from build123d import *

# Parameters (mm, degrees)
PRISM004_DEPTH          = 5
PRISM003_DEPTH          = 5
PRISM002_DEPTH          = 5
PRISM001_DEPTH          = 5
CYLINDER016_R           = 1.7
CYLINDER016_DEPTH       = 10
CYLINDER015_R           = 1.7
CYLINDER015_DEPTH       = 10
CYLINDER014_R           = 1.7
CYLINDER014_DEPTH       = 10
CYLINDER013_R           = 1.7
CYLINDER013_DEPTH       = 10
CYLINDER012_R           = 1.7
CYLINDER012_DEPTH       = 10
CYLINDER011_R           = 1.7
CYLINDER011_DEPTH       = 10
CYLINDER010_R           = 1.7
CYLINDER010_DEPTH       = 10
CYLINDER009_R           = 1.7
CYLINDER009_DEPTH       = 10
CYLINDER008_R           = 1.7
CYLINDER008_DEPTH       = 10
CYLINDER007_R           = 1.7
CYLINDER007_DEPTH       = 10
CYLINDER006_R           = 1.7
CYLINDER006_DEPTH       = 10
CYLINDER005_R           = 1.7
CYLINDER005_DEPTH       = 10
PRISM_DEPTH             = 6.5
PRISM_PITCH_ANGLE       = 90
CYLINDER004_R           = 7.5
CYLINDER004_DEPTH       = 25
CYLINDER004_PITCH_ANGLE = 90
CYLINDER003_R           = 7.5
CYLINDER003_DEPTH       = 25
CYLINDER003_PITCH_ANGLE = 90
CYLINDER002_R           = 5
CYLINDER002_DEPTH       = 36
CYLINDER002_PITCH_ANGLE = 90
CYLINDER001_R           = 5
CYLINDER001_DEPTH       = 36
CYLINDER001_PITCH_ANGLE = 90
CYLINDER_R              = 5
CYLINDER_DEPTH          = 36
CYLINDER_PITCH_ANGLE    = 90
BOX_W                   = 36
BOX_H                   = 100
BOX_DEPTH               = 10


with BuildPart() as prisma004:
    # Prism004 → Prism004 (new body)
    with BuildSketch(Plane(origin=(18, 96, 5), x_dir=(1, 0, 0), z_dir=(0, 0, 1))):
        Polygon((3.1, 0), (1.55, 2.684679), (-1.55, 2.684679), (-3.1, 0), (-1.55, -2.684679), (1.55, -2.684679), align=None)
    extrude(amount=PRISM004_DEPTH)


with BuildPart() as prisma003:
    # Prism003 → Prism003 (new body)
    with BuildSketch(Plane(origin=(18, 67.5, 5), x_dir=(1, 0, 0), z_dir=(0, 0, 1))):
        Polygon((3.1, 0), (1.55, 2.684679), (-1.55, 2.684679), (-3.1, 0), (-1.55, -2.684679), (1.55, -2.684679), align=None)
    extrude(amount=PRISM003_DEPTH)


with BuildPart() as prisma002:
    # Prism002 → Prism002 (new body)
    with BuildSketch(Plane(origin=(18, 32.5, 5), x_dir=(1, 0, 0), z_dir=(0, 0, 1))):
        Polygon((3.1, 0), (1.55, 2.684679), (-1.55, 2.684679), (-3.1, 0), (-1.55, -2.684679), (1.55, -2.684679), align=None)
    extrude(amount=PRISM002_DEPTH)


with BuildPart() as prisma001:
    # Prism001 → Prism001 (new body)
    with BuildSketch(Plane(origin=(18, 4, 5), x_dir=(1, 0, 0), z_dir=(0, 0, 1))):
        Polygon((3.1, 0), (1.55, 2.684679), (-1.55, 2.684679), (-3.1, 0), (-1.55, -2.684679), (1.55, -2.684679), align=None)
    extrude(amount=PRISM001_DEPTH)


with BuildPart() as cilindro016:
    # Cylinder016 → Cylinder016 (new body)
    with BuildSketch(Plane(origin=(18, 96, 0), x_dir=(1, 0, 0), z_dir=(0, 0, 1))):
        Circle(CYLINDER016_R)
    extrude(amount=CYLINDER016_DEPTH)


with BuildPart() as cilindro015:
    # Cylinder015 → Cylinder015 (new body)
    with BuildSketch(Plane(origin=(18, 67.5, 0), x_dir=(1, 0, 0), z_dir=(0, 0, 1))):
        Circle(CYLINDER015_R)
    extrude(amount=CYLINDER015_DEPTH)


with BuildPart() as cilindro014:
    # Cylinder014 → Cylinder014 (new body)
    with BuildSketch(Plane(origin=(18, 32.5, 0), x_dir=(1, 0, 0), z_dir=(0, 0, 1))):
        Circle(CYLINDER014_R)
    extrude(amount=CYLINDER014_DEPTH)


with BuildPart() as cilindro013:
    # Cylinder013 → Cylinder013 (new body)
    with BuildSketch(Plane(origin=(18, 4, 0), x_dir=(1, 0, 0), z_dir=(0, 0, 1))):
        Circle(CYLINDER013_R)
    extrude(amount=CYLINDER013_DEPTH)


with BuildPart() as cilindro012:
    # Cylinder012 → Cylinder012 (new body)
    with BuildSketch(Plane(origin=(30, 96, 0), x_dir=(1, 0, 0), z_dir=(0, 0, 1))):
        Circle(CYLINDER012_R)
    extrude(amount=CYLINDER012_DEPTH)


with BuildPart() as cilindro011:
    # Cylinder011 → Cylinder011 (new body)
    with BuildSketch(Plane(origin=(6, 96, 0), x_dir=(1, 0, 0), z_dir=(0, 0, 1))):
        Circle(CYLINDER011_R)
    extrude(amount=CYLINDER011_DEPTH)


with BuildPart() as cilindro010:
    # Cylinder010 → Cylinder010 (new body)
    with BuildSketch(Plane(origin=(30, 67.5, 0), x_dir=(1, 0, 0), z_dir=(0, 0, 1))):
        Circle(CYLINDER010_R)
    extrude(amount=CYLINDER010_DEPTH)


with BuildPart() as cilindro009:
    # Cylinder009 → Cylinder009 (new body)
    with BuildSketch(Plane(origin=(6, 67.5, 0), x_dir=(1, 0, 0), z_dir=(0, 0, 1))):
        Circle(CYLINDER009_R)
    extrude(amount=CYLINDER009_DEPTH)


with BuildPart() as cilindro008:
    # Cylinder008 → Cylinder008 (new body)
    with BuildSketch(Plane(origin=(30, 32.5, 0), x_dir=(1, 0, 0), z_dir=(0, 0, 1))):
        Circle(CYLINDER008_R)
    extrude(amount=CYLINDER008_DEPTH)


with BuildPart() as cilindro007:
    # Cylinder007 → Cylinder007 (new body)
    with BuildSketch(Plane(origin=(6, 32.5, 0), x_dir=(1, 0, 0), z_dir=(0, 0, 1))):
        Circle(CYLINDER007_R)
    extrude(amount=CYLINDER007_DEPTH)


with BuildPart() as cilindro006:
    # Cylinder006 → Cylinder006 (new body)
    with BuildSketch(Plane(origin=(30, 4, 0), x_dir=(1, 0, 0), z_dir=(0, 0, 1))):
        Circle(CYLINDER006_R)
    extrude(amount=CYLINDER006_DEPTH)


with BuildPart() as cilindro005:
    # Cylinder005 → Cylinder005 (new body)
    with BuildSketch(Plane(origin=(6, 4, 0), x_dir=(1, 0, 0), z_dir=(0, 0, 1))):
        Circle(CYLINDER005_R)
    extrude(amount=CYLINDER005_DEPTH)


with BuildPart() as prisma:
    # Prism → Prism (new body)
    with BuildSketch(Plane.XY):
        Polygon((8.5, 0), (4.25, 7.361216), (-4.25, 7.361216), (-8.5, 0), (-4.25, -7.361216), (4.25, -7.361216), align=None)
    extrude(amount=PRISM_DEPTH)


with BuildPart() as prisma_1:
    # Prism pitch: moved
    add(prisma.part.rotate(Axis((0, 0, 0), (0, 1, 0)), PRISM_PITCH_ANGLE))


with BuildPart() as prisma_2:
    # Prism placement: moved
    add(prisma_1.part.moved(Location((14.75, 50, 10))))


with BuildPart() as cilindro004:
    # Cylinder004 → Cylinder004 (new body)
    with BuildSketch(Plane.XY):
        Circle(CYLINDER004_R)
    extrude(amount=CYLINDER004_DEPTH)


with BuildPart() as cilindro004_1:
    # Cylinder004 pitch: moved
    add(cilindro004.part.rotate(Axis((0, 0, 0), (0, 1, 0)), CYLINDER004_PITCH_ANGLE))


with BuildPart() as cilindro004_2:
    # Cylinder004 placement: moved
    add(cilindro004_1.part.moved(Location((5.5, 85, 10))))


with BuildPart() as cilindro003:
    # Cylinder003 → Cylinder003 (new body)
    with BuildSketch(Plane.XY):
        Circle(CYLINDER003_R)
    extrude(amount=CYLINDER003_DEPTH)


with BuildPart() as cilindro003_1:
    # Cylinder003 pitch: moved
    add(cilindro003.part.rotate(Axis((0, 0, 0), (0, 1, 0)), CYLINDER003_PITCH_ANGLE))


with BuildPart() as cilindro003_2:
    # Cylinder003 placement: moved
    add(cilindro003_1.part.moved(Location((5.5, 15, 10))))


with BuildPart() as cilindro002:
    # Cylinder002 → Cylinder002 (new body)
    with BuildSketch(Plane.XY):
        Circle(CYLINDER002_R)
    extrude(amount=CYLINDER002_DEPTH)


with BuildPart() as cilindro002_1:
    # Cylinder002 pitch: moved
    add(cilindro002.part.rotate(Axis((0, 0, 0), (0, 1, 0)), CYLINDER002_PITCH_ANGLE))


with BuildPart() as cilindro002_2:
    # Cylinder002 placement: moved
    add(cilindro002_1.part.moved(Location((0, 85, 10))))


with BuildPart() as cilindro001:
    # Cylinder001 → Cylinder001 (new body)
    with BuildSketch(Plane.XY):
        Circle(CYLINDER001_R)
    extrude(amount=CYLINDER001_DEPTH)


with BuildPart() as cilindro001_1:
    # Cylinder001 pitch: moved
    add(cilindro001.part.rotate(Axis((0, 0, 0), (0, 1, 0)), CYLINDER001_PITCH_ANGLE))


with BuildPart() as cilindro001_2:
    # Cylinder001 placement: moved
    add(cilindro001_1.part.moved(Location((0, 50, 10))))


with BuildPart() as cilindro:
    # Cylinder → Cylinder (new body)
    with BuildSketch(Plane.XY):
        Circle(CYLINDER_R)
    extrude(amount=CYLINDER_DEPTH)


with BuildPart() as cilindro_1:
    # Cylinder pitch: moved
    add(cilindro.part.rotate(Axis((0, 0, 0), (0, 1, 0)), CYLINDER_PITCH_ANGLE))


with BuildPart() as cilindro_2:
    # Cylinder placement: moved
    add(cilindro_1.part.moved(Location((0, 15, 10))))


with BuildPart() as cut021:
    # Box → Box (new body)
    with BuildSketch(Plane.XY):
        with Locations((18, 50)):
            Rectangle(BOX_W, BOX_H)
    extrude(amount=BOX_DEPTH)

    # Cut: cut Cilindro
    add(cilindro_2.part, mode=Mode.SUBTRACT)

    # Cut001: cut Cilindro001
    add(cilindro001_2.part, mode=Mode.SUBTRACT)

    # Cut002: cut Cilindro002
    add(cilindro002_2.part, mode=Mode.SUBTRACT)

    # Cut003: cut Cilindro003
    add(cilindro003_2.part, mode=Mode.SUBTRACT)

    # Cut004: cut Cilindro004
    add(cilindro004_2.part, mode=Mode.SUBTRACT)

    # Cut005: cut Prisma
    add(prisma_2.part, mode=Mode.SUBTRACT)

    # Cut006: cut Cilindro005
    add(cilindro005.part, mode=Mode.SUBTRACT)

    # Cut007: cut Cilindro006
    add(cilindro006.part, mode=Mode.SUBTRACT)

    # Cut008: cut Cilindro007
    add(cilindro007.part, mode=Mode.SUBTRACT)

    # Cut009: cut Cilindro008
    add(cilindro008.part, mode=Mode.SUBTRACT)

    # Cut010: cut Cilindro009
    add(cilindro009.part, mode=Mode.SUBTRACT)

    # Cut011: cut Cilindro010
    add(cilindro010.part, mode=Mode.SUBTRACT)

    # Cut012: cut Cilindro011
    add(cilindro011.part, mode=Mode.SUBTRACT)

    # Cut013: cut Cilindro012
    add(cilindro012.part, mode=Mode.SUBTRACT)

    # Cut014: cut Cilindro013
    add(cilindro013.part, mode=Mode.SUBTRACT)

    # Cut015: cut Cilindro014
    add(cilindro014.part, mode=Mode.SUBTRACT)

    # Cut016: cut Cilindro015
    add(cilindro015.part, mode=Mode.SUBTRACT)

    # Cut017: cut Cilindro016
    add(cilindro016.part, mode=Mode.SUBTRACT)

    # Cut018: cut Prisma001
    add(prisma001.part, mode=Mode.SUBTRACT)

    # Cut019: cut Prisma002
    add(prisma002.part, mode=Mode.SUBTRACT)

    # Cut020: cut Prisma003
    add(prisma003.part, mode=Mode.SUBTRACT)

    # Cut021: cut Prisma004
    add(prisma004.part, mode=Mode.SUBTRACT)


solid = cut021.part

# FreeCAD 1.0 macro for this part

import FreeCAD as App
import Part
import Sketcher

V = App.Vector
Q = App.Units.Quantity

doc = App.newDocument("Part")
body = doc.addObject("PartDesign::Body", "Body")

# Sketch on XY plane
sketch1 = body.newObject("Sketcher::SketchObject", "Sketch")
sketch1.AttachmentSupport = (doc.getObject("XY_Plane"), [""])
sketch1.MapMode = "FlatFace"
sketch1.AttachmentOffset = App.Placement(V(0, 0, 5), App.Rotation())
sketch1.addGeometry([
    Part.LineSegment(V(21.1, 96, 0), V(19.55, 98.684679, 0)),  # 0
    Part.LineSegment(V(19.55, 98.684679, 0), V(16.45, 98.684679, 0)),  # 1
    Part.LineSegment(V(16.45, 98.684679, 0), V(14.9, 96, 0)),  # 2
    Part.LineSegment(V(14.9, 96, 0), V(16.45, 93.315321, 0)),  # 3
    Part.LineSegment(V(16.45, 93.315321, 0), V(19.55, 93.315321, 0)),  # 4
    Part.LineSegment(V(19.55, 93.315321, 0), V(21.1, 96, 0)),  # 5
], False)
sketch1.addConstraint([
    Sketcher.Constraint("Coincident", 0, 2, 1, 1),
    Sketcher.Constraint("Coincident", 1, 2, 2, 1),
    Sketcher.Constraint("Coincident", 2, 2, 3, 1),
    Sketcher.Constraint("Coincident", 3, 2, 4, 1),
    Sketcher.Constraint("Coincident", 4, 2, 5, 1),
    Sketcher.Constraint("Coincident", 5, 2, 0, 1),
    Sketcher.Constraint("Horizontal", 1),
    Sketcher.Constraint("Horizontal", 4),
    Sketcher.Constraint("Parallel", 0, 3),
    Sketcher.Constraint("Parallel", 2, 5),
    Sketcher.Constraint("Horizontal", 2, 2, 5, 2),
    Sketcher.Constraint("Vertical", 1, 2, 3, 2),
    Sketcher.Constraint("Vertical", 0, 2, 4, 2),
    Sketcher.Constraint("Angle", 0, Q("119.999998 deg")),
    Sketcher.Constraint("DistanceX", 1, 2, 1, 1, Q("3.1 mm")),
    Sketcher.Constraint("DistanceY", -1, 1, 2, 2, Q("96 mm")),
    Sketcher.Constraint("Distance", 0, Q("3.1 mm")),
    Sketcher.Constraint("DistanceX", -1, 1, 2, 2, Q("14.9 mm")),
])
pad1 = body.newObject("PartDesign::Pad", "Pad")
pad1.Profile = sketch1
pad1.Length = 5
body2 = doc.addObject("PartDesign::Body", "Body001")

# Sketch on XY plane
sketch2 = body2.newObject("Sketcher::SketchObject", "Sketch001")
sketch2.AttachmentSupport = (doc.getObject("XY_Plane001"), [""])
sketch2.MapMode = "FlatFace"
sketch2.AttachmentOffset = App.Placement(V(0, 0, 5), App.Rotation())
sketch2.addGeometry([
    Part.LineSegment(V(21.1, 67.5, 0), V(19.55, 70.184679, 0)),  # 0
    Part.LineSegment(V(19.55, 70.184679, 0), V(16.45, 70.184679, 0)),  # 1
    Part.LineSegment(V(16.45, 70.184679, 0), V(14.9, 67.5, 0)),  # 2
    Part.LineSegment(V(14.9, 67.5, 0), V(16.45, 64.815321, 0)),  # 3
    Part.LineSegment(V(16.45, 64.815321, 0), V(19.55, 64.815321, 0)),  # 4
    Part.LineSegment(V(19.55, 64.815321, 0), V(21.1, 67.5, 0)),  # 5
], False)
sketch2.addConstraint([
    Sketcher.Constraint("Coincident", 0, 2, 1, 1),
    Sketcher.Constraint("Coincident", 1, 2, 2, 1),
    Sketcher.Constraint("Coincident", 2, 2, 3, 1),
    Sketcher.Constraint("Coincident", 3, 2, 4, 1),
    Sketcher.Constraint("Coincident", 4, 2, 5, 1),
    Sketcher.Constraint("Coincident", 5, 2, 0, 1),
    Sketcher.Constraint("Horizontal", 1),
    Sketcher.Constraint("Horizontal", 4),
    Sketcher.Constraint("Parallel", 0, 3),
    Sketcher.Constraint("Parallel", 2, 5),
    Sketcher.Constraint("Horizontal", 2, 2, 5, 2),
    Sketcher.Constraint("Vertical", 1, 2, 3, 2),
    Sketcher.Constraint("Vertical", 0, 2, 4, 2),
    Sketcher.Constraint("Angle", 0, Q("119.999998 deg")),
    Sketcher.Constraint("DistanceX", 1, 2, 1, 1, Q("3.1 mm")),
    Sketcher.Constraint("Distance", 0, Q("3.1 mm")),
    Sketcher.Constraint("DistanceX", -1, 1, 2, 2, Q("14.9 mm")),
    Sketcher.Constraint("DistanceY", -1, 1, 2, 2, Q("67.5 mm")),
])
pad2 = body2.newObject("PartDesign::Pad", "Pad001")
pad2.Profile = sketch2
pad2.Length = 5
body3 = doc.addObject("PartDesign::Body", "Body002")

# Sketch on XY plane
sketch3 = body3.newObject("Sketcher::SketchObject", "Sketch002")
sketch3.AttachmentSupport = (doc.getObject("XY_Plane002"), [""])
sketch3.MapMode = "FlatFace"
sketch3.AttachmentOffset = App.Placement(V(0, 0, 5), App.Rotation())
sketch3.addGeometry([
    Part.LineSegment(V(21.1, 32.5, 0), V(19.55, 35.184679, 0)),  # 0
    Part.LineSegment(V(19.55, 35.184679, 0), V(16.45, 35.184679, 0)),  # 1
    Part.LineSegment(V(16.45, 35.184679, 0), V(14.9, 32.5, 0)),  # 2
    Part.LineSegment(V(14.9, 32.5, 0), V(16.45, 29.815321, 0)),  # 3
    Part.LineSegment(V(16.45, 29.815321, 0), V(19.55, 29.815321, 0)),  # 4
    Part.LineSegment(V(19.55, 29.815321, 0), V(21.1, 32.5, 0)),  # 5
], False)
sketch3.addConstraint([
    Sketcher.Constraint("Coincident", 0, 2, 1, 1),
    Sketcher.Constraint("Coincident", 1, 2, 2, 1),
    Sketcher.Constraint("Coincident", 2, 2, 3, 1),
    Sketcher.Constraint("Coincident", 3, 2, 4, 1),
    Sketcher.Constraint("Coincident", 4, 2, 5, 1),
    Sketcher.Constraint("Coincident", 5, 2, 0, 1),
    Sketcher.Constraint("Horizontal", 1),
    Sketcher.Constraint("Horizontal", 4),
    Sketcher.Constraint("Parallel", 0, 3),
    Sketcher.Constraint("Parallel", 2, 5),
    Sketcher.Constraint("Horizontal", 2, 2, 5, 2),
    Sketcher.Constraint("Vertical", 1, 2, 3, 2),
    Sketcher.Constraint("Vertical", 0, 2, 4, 2),
    Sketcher.Constraint("Angle", 0, Q("119.999998 deg")),
    Sketcher.Constraint("DistanceX", 1, 2, 1, 1, Q("3.1 mm")),
    Sketcher.Constraint("Distance", 0, Q("3.1 mm")),
    Sketcher.Constraint("DistanceX", -1, 1, 2, 2, Q("14.9 mm")),
    Sketcher.Constraint("DistanceY", -1, 1, 2, 2, Q("32.5 mm")),
])
pad3 = body3.newObject("PartDesign::Pad", "Pad002")
pad3.Profile = sketch3
pad3.Length = 5
body4 = doc.addObject("PartDesign::Body", "Body003")

# Sketch on XY plane
sketch4 = body4.newObject("Sketcher::SketchObject", "Sketch003")
sketch4.AttachmentSupport = (doc.getObject("XY_Plane003"), [""])
sketch4.MapMode = "FlatFace"
sketch4.AttachmentOffset = App.Placement(V(0, 0, 5), App.Rotation())
sketch4.addGeometry([
    Part.LineSegment(V(21.1, 4, 0), V(19.55, 6.684679, 0)),  # 0
    Part.LineSegment(V(19.55, 6.684679, 0), V(16.45, 6.684679, 0)),  # 1
    Part.LineSegment(V(16.45, 6.684679, 0), V(14.9, 4, 0)),  # 2
    Part.LineSegment(V(14.9, 4, 0), V(16.45, 1.315321, 0)),  # 3
    Part.LineSegment(V(16.45, 1.315321, 0), V(19.55, 1.315321, 0)),  # 4
    Part.LineSegment(V(19.55, 1.315321, 0), V(21.1, 4, 0)),  # 5
], False)
sketch4.addConstraint([
    Sketcher.Constraint("Coincident", 0, 2, 1, 1),
    Sketcher.Constraint("Coincident", 1, 2, 2, 1),
    Sketcher.Constraint("Coincident", 2, 2, 3, 1),
    Sketcher.Constraint("Coincident", 3, 2, 4, 1),
    Sketcher.Constraint("Coincident", 4, 2, 5, 1),
    Sketcher.Constraint("Coincident", 5, 2, 0, 1),
    Sketcher.Constraint("Horizontal", 1),
    Sketcher.Constraint("Horizontal", 4),
    Sketcher.Constraint("Parallel", 0, 3),
    Sketcher.Constraint("Parallel", 2, 5),
    Sketcher.Constraint("Horizontal", 2, 2, 5, 2),
    Sketcher.Constraint("Vertical", 1, 2, 3, 2),
    Sketcher.Constraint("Vertical", 0, 2, 4, 2),
    Sketcher.Constraint("Angle", 0, Q("119.999998 deg")),
    Sketcher.Constraint("DistanceX", 1, 2, 1, 1, Q("3.1 mm")),
    Sketcher.Constraint("DistanceY", -1, 1, 2, 2, Q("4 mm")),
    Sketcher.Constraint("Distance", 0, Q("3.1 mm")),
    Sketcher.Constraint("DistanceX", -1, 1, 2, 2, Q("14.9 mm")),
])
pad4 = body4.newObject("PartDesign::Pad", "Pad003")
pad4.Profile = sketch4
pad4.Length = 5
body5 = doc.addObject("PartDesign::Body", "Body004")

# Sketch on XY plane
sketch5 = body5.newObject("Sketcher::SketchObject", "Sketch004")
sketch5.AttachmentSupport = (doc.getObject("XY_Plane004"), [""])
sketch5.MapMode = "FlatFace"
sketch5.addGeometry(Part.Circle(V(18, 96, 0), V(0, 0, 1), 1.7), False)
sketch5.addConstraint([
    Sketcher.Constraint("Diameter", 0, Q("3.4 mm")),
    Sketcher.Constraint("DistanceX", -1, 1, 0, 3, Q("18 mm")),
    Sketcher.Constraint("DistanceY", -1, 1, 0, 3, Q("96 mm")),
])
pad5 = body5.newObject("PartDesign::Pad", "Pad004")
pad5.Profile = sketch5
pad5.Length = 10
body6 = doc.addObject("PartDesign::Body", "Body005")

# Sketch on XY plane
sketch6 = body6.newObject("Sketcher::SketchObject", "Sketch005")
sketch6.AttachmentSupport = (doc.getObject("XY_Plane005"), [""])
sketch6.MapMode = "FlatFace"
sketch6.addGeometry(Part.Circle(V(18, 67.5, 0), V(0, 0, 1), 1.7), False)
sketch6.addConstraint([
    Sketcher.Constraint("Diameter", 0, Q("3.4 mm")),
    Sketcher.Constraint("DistanceX", -1, 1, 0, 3, Q("18 mm")),
    Sketcher.Constraint("DistanceY", -1, 1, 0, 3, Q("67.5 mm")),
])
pad6 = body6.newObject("PartDesign::Pad", "Pad005")
pad6.Profile = sketch6
pad6.Length = 10
body7 = doc.addObject("PartDesign::Body", "Body006")

# Sketch on XY plane
sketch7 = body7.newObject("Sketcher::SketchObject", "Sketch006")
sketch7.AttachmentSupport = (doc.getObject("XY_Plane006"), [""])
sketch7.MapMode = "FlatFace"
sketch7.addGeometry(Part.Circle(V(18, 32.5, 0), V(0, 0, 1), 1.7), False)
sketch7.addConstraint([
    Sketcher.Constraint("Diameter", 0, Q("3.4 mm")),
    Sketcher.Constraint("DistanceX", -1, 1, 0, 3, Q("18 mm")),
    Sketcher.Constraint("DistanceY", -1, 1, 0, 3, Q("32.5 mm")),
])
pad7 = body7.newObject("PartDesign::Pad", "Pad006")
pad7.Profile = sketch7
pad7.Length = 10
body8 = doc.addObject("PartDesign::Body", "Body007")

# Sketch on XY plane
sketch8 = body8.newObject("Sketcher::SketchObject", "Sketch007")
sketch8.AttachmentSupport = (doc.getObject("XY_Plane007"), [""])
sketch8.MapMode = "FlatFace"
sketch8.addGeometry(Part.Circle(V(18, 4, 0), V(0, 0, 1), 1.7), False)
sketch8.addConstraint([
    Sketcher.Constraint("Diameter", 0, Q("3.4 mm")),
    Sketcher.Constraint("DistanceX", -1, 1, 0, 3, Q("18 mm")),
    Sketcher.Constraint("DistanceY", -1, 1, 0, 3, Q("4 mm")),
])
pad8 = body8.newObject("PartDesign::Pad", "Pad007")
pad8.Profile = sketch8
pad8.Length = 10
body9 = doc.addObject("PartDesign::Body", "Body008")

# Sketch on XY plane
sketch9 = body9.newObject("Sketcher::SketchObject", "Sketch008")
sketch9.AttachmentSupport = (doc.getObject("XY_Plane008"), [""])
sketch9.MapMode = "FlatFace"
sketch9.addGeometry(Part.Circle(V(30, 96, 0), V(0, 0, 1), 1.7), False)
sketch9.addConstraint([
    Sketcher.Constraint("Diameter", 0, Q("3.4 mm")),
    Sketcher.Constraint("DistanceX", -1, 1, 0, 3, Q("30 mm")),
    Sketcher.Constraint("DistanceY", -1, 1, 0, 3, Q("96 mm")),
])
pad9 = body9.newObject("PartDesign::Pad", "Pad008")
pad9.Profile = sketch9
pad9.Length = 10
body10 = doc.addObject("PartDesign::Body", "Body009")

# Sketch on XY plane
sketch10 = body10.newObject("Sketcher::SketchObject", "Sketch009")
sketch10.AttachmentSupport = (doc.getObject("XY_Plane009"), [""])
sketch10.MapMode = "FlatFace"
sketch10.addGeometry(Part.Circle(V(6, 96, 0), V(0, 0, 1), 1.7), False)
sketch10.addConstraint([
    Sketcher.Constraint("Diameter", 0, Q("3.4 mm")),
    Sketcher.Constraint("DistanceX", -1, 1, 0, 3, Q("6 mm")),
    Sketcher.Constraint("DistanceY", -1, 1, 0, 3, Q("96 mm")),
])
pad10 = body10.newObject("PartDesign::Pad", "Pad009")
pad10.Profile = sketch10
pad10.Length = 10
body11 = doc.addObject("PartDesign::Body", "Body010")

# Sketch on XY plane
sketch11 = body11.newObject("Sketcher::SketchObject", "Sketch010")
sketch11.AttachmentSupport = (doc.getObject("XY_Plane010"), [""])
sketch11.MapMode = "FlatFace"
sketch11.addGeometry(Part.Circle(V(30, 67.5, 0), V(0, 0, 1), 1.7), False)
sketch11.addConstraint([
    Sketcher.Constraint("Diameter", 0, Q("3.4 mm")),
    Sketcher.Constraint("DistanceX", -1, 1, 0, 3, Q("30 mm")),
    Sketcher.Constraint("DistanceY", -1, 1, 0, 3, Q("67.5 mm")),
])
pad11 = body11.newObject("PartDesign::Pad", "Pad010")
pad11.Profile = sketch11
pad11.Length = 10
body12 = doc.addObject("PartDesign::Body", "Body011")

# Sketch on XY plane
sketch12 = body12.newObject("Sketcher::SketchObject", "Sketch011")
sketch12.AttachmentSupport = (doc.getObject("XY_Plane011"), [""])
sketch12.MapMode = "FlatFace"
sketch12.addGeometry(Part.Circle(V(6, 67.5, 0), V(0, 0, 1), 1.7), False)
sketch12.addConstraint([
    Sketcher.Constraint("Diameter", 0, Q("3.4 mm")),
    Sketcher.Constraint("DistanceX", -1, 1, 0, 3, Q("6 mm")),
    Sketcher.Constraint("DistanceY", -1, 1, 0, 3, Q("67.5 mm")),
])
pad12 = body12.newObject("PartDesign::Pad", "Pad011")
pad12.Profile = sketch12
pad12.Length = 10
body13 = doc.addObject("PartDesign::Body", "Body012")

# Sketch on XY plane
sketch13 = body13.newObject("Sketcher::SketchObject", "Sketch012")
sketch13.AttachmentSupport = (doc.getObject("XY_Plane012"), [""])
sketch13.MapMode = "FlatFace"
sketch13.addGeometry(Part.Circle(V(30, 32.5, 0), V(0, 0, 1), 1.7), False)
sketch13.addConstraint([
    Sketcher.Constraint("Diameter", 0, Q("3.4 mm")),
    Sketcher.Constraint("DistanceX", -1, 1, 0, 3, Q("30 mm")),
    Sketcher.Constraint("DistanceY", -1, 1, 0, 3, Q("32.5 mm")),
])
pad13 = body13.newObject("PartDesign::Pad", "Pad012")
pad13.Profile = sketch13
pad13.Length = 10
body14 = doc.addObject("PartDesign::Body", "Body013")

# Sketch on XY plane
sketch14 = body14.newObject("Sketcher::SketchObject", "Sketch013")
sketch14.AttachmentSupport = (doc.getObject("XY_Plane013"), [""])
sketch14.MapMode = "FlatFace"
sketch14.addGeometry(Part.Circle(V(6, 32.5, 0), V(0, 0, 1), 1.7), False)
sketch14.addConstraint([
    Sketcher.Constraint("Diameter", 0, Q("3.4 mm")),
    Sketcher.Constraint("DistanceX", -1, 1, 0, 3, Q("6 mm")),
    Sketcher.Constraint("DistanceY", -1, 1, 0, 3, Q("32.5 mm")),
])
pad14 = body14.newObject("PartDesign::Pad", "Pad013")
pad14.Profile = sketch14
pad14.Length = 10
body15 = doc.addObject("PartDesign::Body", "Body014")

# Sketch on XY plane
sketch15 = body15.newObject("Sketcher::SketchObject", "Sketch014")
sketch15.AttachmentSupport = (doc.getObject("XY_Plane014"), [""])
sketch15.MapMode = "FlatFace"
sketch15.addGeometry(Part.Circle(V(30, 4, 0), V(0, 0, 1), 1.7), False)
sketch15.addConstraint([
    Sketcher.Constraint("Diameter", 0, Q("3.4 mm")),
    Sketcher.Constraint("DistanceX", -1, 1, 0, 3, Q("30 mm")),
    Sketcher.Constraint("DistanceY", -1, 1, 0, 3, Q("4 mm")),
])
pad15 = body15.newObject("PartDesign::Pad", "Pad014")
pad15.Profile = sketch15
pad15.Length = 10
body16 = doc.addObject("PartDesign::Body", "Body015")

# Sketch on XY plane
sketch16 = body16.newObject("Sketcher::SketchObject", "Sketch015")
sketch16.AttachmentSupport = (doc.getObject("XY_Plane015"), [""])
sketch16.MapMode = "FlatFace"
sketch16.addGeometry(Part.Circle(V(6, 4, 0), V(0, 0, 1), 1.7), False)
sketch16.addConstraint([
    Sketcher.Constraint("Diameter", 0, Q("3.4 mm")),
    Sketcher.Constraint("DistanceX", -1, 1, 0, 3, Q("6 mm")),
    Sketcher.Constraint("DistanceY", -1, 1, 0, 3, Q("4 mm")),
])
pad16 = body16.newObject("PartDesign::Pad", "Pad015")
pad16.Profile = sketch16
pad16.Length = 10
body17 = doc.addObject("PartDesign::Body", "Body016")

# Sketch on XY plane
sketch17 = body17.newObject("Sketcher::SketchObject", "Sketch016")
sketch17.AttachmentSupport = (doc.getObject("XY_Plane016"), [""])
sketch17.MapMode = "FlatFace"
sketch17.addGeometry([
    Part.LineSegment(V(8.5, 0, 0), V(4.25, 7.361216, 0)),  # 0
    Part.LineSegment(V(4.25, 7.361216, 0), V(-4.25, 7.361216, 0)),  # 1
    Part.LineSegment(V(-4.25, 7.361216, 0), V(-8.5, 0, 0)),  # 2
    Part.LineSegment(V(-8.5, 0, 0), V(-4.25, -7.361216, 0)),  # 3
    Part.LineSegment(V(-4.25, -7.361216, 0), V(4.25, -7.361216, 0)),  # 4
    Part.LineSegment(V(4.25, -7.361216, 0), V(8.5, 0, 0)),  # 5
], False)
sketch17.addConstraint([
    Sketcher.Constraint("Coincident", 0, 2, 1, 1),
    Sketcher.Constraint("Coincident", 1, 2, 2, 1),
    Sketcher.Constraint("Coincident", 2, 2, 3, 1),
    Sketcher.Constraint("Coincident", 3, 2, 4, 1),
    Sketcher.Constraint("Coincident", 4, 2, 5, 1),
    Sketcher.Constraint("Coincident", 5, 2, 0, 1),
    Sketcher.Constraint("Horizontal", 1),
    Sketcher.Constraint("Horizontal", 4),
    Sketcher.Constraint("Symmetric", 0, 2, 3, 2, -1, 1),
    Sketcher.Constraint("Symmetric", 2, 2, 5, 2, -1, 1),
    Sketcher.Constraint("PointOnObject", 2, 2, -1),
    Sketcher.Constraint("Parallel", 2, 5),
    Sketcher.Constraint("Vertical", 1, 2, 3, 2),
    Sketcher.Constraint("Angle", 0, Q("120 deg")),
    Sketcher.Constraint("DistanceX", 1, 2, 1, 1, Q("8.5 mm")),
    Sketcher.Constraint("DistanceX", 2, 2, 5, 2, Q("17 mm")),
])
pad17 = body17.newObject("PartDesign::Pad", "Pad016")
pad17.Profile = sketch17
pad17.Length = 6.5
body18 = doc.addObject("PartDesign::Body", "Body017")
doc.recompute()

body17.Placement = App.Placement(V(0, 0, 0), App.Rotation(V(0, 1, 0), 90))
boolean = body18.newObject("PartDesign::Boolean", "Boolean")
boolean.Type = "Fuse"
boolean.addObjects([body17])
body19 = doc.addObject("PartDesign::Body", "Body018")
doc.recompute()

body18.Placement = App.Placement(V(14.75, 50, 10), App.Rotation(V(0, 0, 1), 0))
boolean2 = body19.newObject("PartDesign::Boolean", "Boolean001")
boolean2.Type = "Fuse"
boolean2.addObjects([body18])
body20 = doc.addObject("PartDesign::Body", "Body019")

# Sketch on XY plane
sketch18 = body20.newObject("Sketcher::SketchObject", "Sketch017")
sketch18.AttachmentSupport = (doc.getObject("XY_Plane019"), [""])
sketch18.MapMode = "FlatFace"
sketch18.addGeometry(Part.Circle(V(0, 0, 0), V(0, 0, 1), 7.5), False)
sketch18.addConstraint([
    Sketcher.Constraint("Coincident", 0, 3, -1, 1),
    Sketcher.Constraint("Diameter", 0, Q("15 mm")),
])
pad18 = body20.newObject("PartDesign::Pad", "Pad017")
pad18.Profile = sketch18
pad18.Length = 25
body21 = doc.addObject("PartDesign::Body", "Body020")
doc.recompute()

body20.Placement = App.Placement(V(0, 0, 0), App.Rotation(V(0, 1, 0), 90))
boolean3 = body21.newObject("PartDesign::Boolean", "Boolean002")
boolean3.Type = "Fuse"
boolean3.addObjects([body20])
body22 = doc.addObject("PartDesign::Body", "Body021")
doc.recompute()

body21.Placement = App.Placement(V(5.5, 85, 10), App.Rotation(V(0, 0, 1), 0))
boolean4 = body22.newObject("PartDesign::Boolean", "Boolean003")
boolean4.Type = "Fuse"
boolean4.addObjects([body21])
body23 = doc.addObject("PartDesign::Body", "Body022")

# Sketch on XY plane
sketch19 = body23.newObject("Sketcher::SketchObject", "Sketch018")
sketch19.AttachmentSupport = (doc.getObject("XY_Plane022"), [""])
sketch19.MapMode = "FlatFace"
sketch19.addGeometry(Part.Circle(V(0, 0, 0), V(0, 0, 1), 7.5), False)
sketch19.addConstraint([
    Sketcher.Constraint("Coincident", 0, 3, -1, 1),
    Sketcher.Constraint("Diameter", 0, Q("15 mm")),
])
pad19 = body23.newObject("PartDesign::Pad", "Pad018")
pad19.Profile = sketch19
pad19.Length = 25
body24 = doc.addObject("PartDesign::Body", "Body023")
doc.recompute()

body23.Placement = App.Placement(V(0, 0, 0), App.Rotation(V(0, 1, 0), 90))
boolean5 = body24.newObject("PartDesign::Boolean", "Boolean004")
boolean5.Type = "Fuse"
boolean5.addObjects([body23])
body25 = doc.addObject("PartDesign::Body", "Body024")
doc.recompute()

body24.Placement = App.Placement(V(5.5, 15, 10), App.Rotation(V(0, 0, 1), 0))
boolean6 = body25.newObject("PartDesign::Boolean", "Boolean005")
boolean6.Type = "Fuse"
boolean6.addObjects([body24])
body26 = doc.addObject("PartDesign::Body", "Body025")

# Sketch on XY plane
sketch20 = body26.newObject("Sketcher::SketchObject", "Sketch019")
sketch20.AttachmentSupport = (doc.getObject("XY_Plane025"), [""])
sketch20.MapMode = "FlatFace"
sketch20.addGeometry(Part.Circle(V(0, 0, 0), V(0, 0, 1), 5), False)
sketch20.addConstraint([
    Sketcher.Constraint("Coincident", 0, 3, -1, 1),
    Sketcher.Constraint("Diameter", 0, Q("10 mm")),
])
pad20 = body26.newObject("PartDesign::Pad", "Pad019")
pad20.Profile = sketch20
pad20.Length = 36
body27 = doc.addObject("PartDesign::Body", "Body026")
doc.recompute()

body26.Placement = App.Placement(V(0, 0, 0), App.Rotation(V(0, 1, 0), 90))
boolean7 = body27.newObject("PartDesign::Boolean", "Boolean006")
boolean7.Type = "Fuse"
boolean7.addObjects([body26])
body28 = doc.addObject("PartDesign::Body", "Body027")
doc.recompute()

body27.Placement = App.Placement(V(0, 85, 10), App.Rotation(V(0, 0, 1), 0))
boolean8 = body28.newObject("PartDesign::Boolean", "Boolean007")
boolean8.Type = "Fuse"
boolean8.addObjects([body27])
body29 = doc.addObject("PartDesign::Body", "Body028")

# Sketch on XY plane
sketch21 = body29.newObject("Sketcher::SketchObject", "Sketch020")
sketch21.AttachmentSupport = (doc.getObject("XY_Plane028"), [""])
sketch21.MapMode = "FlatFace"
sketch21.addGeometry(Part.Circle(V(0, 0, 0), V(0, 0, 1), 5), False)
sketch21.addConstraint([
    Sketcher.Constraint("Coincident", 0, 3, -1, 1),
    Sketcher.Constraint("Diameter", 0, Q("10 mm")),
])
pad21 = body29.newObject("PartDesign::Pad", "Pad020")
pad21.Profile = sketch21
pad21.Length = 36
body30 = doc.addObject("PartDesign::Body", "Body029")
doc.recompute()

body29.Placement = App.Placement(V(0, 0, 0), App.Rotation(V(0, 1, 0), 90))
boolean9 = body30.newObject("PartDesign::Boolean", "Boolean008")
boolean9.Type = "Fuse"
boolean9.addObjects([body29])
body31 = doc.addObject("PartDesign::Body", "Body030")
doc.recompute()

body30.Placement = App.Placement(V(0, 50, 10), App.Rotation(V(0, 0, 1), 0))
boolean10 = body31.newObject("PartDesign::Boolean", "Boolean009")
boolean10.Type = "Fuse"
boolean10.addObjects([body30])
body32 = doc.addObject("PartDesign::Body", "Body031")

# Sketch on XY plane
sketch22 = body32.newObject("Sketcher::SketchObject", "Sketch021")
sketch22.AttachmentSupport = (doc.getObject("XY_Plane031"), [""])
sketch22.MapMode = "FlatFace"
sketch22.addGeometry(Part.Circle(V(0, 0, 0), V(0, 0, 1), 5), False)
sketch22.addConstraint([
    Sketcher.Constraint("Coincident", 0, 3, -1, 1),
    Sketcher.Constraint("Diameter", 0, Q("10 mm")),
])
pad22 = body32.newObject("PartDesign::Pad", "Pad021")
pad22.Profile = sketch22
pad22.Length = 36
body33 = doc.addObject("PartDesign::Body", "Body032")
doc.recompute()

body32.Placement = App.Placement(V(0, 0, 0), App.Rotation(V(0, 1, 0), 90))
boolean11 = body33.newObject("PartDesign::Boolean", "Boolean010")
boolean11.Type = "Fuse"
boolean11.addObjects([body32])
body34 = doc.addObject("PartDesign::Body", "Body033")
doc.recompute()

body33.Placement = App.Placement(V(0, 15, 10), App.Rotation(V(0, 0, 1), 0))
boolean12 = body34.newObject("PartDesign::Boolean", "Boolean011")
boolean12.Type = "Fuse"
boolean12.addObjects([body33])
body35 = doc.addObject("PartDesign::Body", "Body034")

# Sketch on XY plane
sketch23 = body35.newObject("Sketcher::SketchObject", "Sketch022")
sketch23.AttachmentSupport = (doc.getObject("XY_Plane034"), [""])
sketch23.MapMode = "FlatFace"
sketch23.addGeometry([
    Part.LineSegment(V(0, 100, 0), V(0, 0, 0)),
    Part.LineSegment(V(0, 0, 0), V(36, 0, 0)),
    Part.LineSegment(V(36, 0, 0), V(36, 100, 0)),
    Part.LineSegment(V(36, 100, 0), V(0, 100, 0)),
], False)
sketch23.addConstraint([
    Sketcher.Constraint("Coincident", 0, 2, 1, 1),
    Sketcher.Constraint("Coincident", 1, 2, 2, 1),
    Sketcher.Constraint("Coincident", 2, 2, 3, 1),
    Sketcher.Constraint("Coincident", 3, 2, 0, 1),
    Sketcher.Constraint("Vertical", 0),
    Sketcher.Constraint("Horizontal", 1),
    Sketcher.Constraint("Vertical", 2),
    Sketcher.Constraint("Horizontal", 3),
    Sketcher.Constraint("Coincident", 0, 2, -1, 1),
    Sketcher.Constraint("DistanceX", 1, 1, 1, 2, Q("36 mm")),
    Sketcher.Constraint("DistanceY", 0, 2, 0, 1, Q("100 mm")),
])
pad23 = body35.newObject("PartDesign::Pad", "Pad022")
pad23.Profile = sketch23
pad23.Length = 10
doc.recompute()

boolean13 = body35.newObject("PartDesign::Boolean", "Boolean012")
boolean13.Type = "Cut"
boolean13.addObjects([body34])
doc.recompute()

boolean14 = body35.newObject("PartDesign::Boolean", "Boolean013")
boolean14.Type = "Cut"
boolean14.addObjects([body31])
doc.recompute()

boolean15 = body35.newObject("PartDesign::Boolean", "Boolean014")
boolean15.Type = "Cut"
boolean15.addObjects([body28])
doc.recompute()

boolean16 = body35.newObject("PartDesign::Boolean", "Boolean015")
boolean16.Type = "Cut"
boolean16.addObjects([body25])
doc.recompute()

boolean17 = body35.newObject("PartDesign::Boolean", "Boolean016")
boolean17.Type = "Cut"
boolean17.addObjects([body22])
doc.recompute()

boolean18 = body35.newObject("PartDesign::Boolean", "Boolean017")
boolean18.Type = "Cut"
boolean18.addObjects([body19])
doc.recompute()

boolean19 = body35.newObject("PartDesign::Boolean", "Boolean018")
boolean19.Type = "Cut"
boolean19.addObjects([body16])
doc.recompute()

boolean20 = body35.newObject("PartDesign::Boolean", "Boolean019")
boolean20.Type = "Cut"
boolean20.addObjects([body15])
doc.recompute()

boolean21 = body35.newObject("PartDesign::Boolean", "Boolean020")
boolean21.Type = "Cut"
boolean21.addObjects([body14])
doc.recompute()

boolean22 = body35.newObject("PartDesign::Boolean", "Boolean021")
boolean22.Type = "Cut"
boolean22.addObjects([body13])
doc.recompute()

boolean23 = body35.newObject("PartDesign::Boolean", "Boolean022")
boolean23.Type = "Cut"
boolean23.addObjects([body12])
doc.recompute()

boolean24 = body35.newObject("PartDesign::Boolean", "Boolean023")
boolean24.Type = "Cut"
boolean24.addObjects([body11])
doc.recompute()

boolean25 = body35.newObject("PartDesign::Boolean", "Boolean024")
boolean25.Type = "Cut"
boolean25.addObjects([body10])
doc.recompute()

boolean26 = body35.newObject("PartDesign::Boolean", "Boolean025")
boolean26.Type = "Cut"
boolean26.addObjects([body9])
doc.recompute()

boolean27 = body35.newObject("PartDesign::Boolean", "Boolean026")
boolean27.Type = "Cut"
boolean27.addObjects([body8])
doc.recompute()

boolean28 = body35.newObject("PartDesign::Boolean", "Boolean027")
boolean28.Type = "Cut"
boolean28.addObjects([body7])
doc.recompute()

boolean29 = body35.newObject("PartDesign::Boolean", "Boolean028")
boolean29.Type = "Cut"
boolean29.addObjects([body6])
doc.recompute()

boolean30 = body35.newObject("PartDesign::Boolean", "Boolean029")
boolean30.Type = "Cut"
boolean30.addObjects([body5])
doc.recompute()

boolean31 = body35.newObject("PartDesign::Boolean", "Boolean030")
boolean31.Type = "Cut"
boolean31.addObjects([body4])
doc.recompute()

boolean32 = body35.newObject("PartDesign::Boolean", "Boolean031")
boolean32.Type = "Cut"
boolean32.addObjects([body3])
doc.recompute()

boolean33 = body35.newObject("PartDesign::Boolean", "Boolean032")
boolean33.Type = "Cut"
boolean33.addObjects([body2])
doc.recompute()

boolean34 = body35.newObject("PartDesign::Boolean", "Boolean033")
boolean34.Type = "Cut"
boolean34.addObjects([body])

doc.recompute()
